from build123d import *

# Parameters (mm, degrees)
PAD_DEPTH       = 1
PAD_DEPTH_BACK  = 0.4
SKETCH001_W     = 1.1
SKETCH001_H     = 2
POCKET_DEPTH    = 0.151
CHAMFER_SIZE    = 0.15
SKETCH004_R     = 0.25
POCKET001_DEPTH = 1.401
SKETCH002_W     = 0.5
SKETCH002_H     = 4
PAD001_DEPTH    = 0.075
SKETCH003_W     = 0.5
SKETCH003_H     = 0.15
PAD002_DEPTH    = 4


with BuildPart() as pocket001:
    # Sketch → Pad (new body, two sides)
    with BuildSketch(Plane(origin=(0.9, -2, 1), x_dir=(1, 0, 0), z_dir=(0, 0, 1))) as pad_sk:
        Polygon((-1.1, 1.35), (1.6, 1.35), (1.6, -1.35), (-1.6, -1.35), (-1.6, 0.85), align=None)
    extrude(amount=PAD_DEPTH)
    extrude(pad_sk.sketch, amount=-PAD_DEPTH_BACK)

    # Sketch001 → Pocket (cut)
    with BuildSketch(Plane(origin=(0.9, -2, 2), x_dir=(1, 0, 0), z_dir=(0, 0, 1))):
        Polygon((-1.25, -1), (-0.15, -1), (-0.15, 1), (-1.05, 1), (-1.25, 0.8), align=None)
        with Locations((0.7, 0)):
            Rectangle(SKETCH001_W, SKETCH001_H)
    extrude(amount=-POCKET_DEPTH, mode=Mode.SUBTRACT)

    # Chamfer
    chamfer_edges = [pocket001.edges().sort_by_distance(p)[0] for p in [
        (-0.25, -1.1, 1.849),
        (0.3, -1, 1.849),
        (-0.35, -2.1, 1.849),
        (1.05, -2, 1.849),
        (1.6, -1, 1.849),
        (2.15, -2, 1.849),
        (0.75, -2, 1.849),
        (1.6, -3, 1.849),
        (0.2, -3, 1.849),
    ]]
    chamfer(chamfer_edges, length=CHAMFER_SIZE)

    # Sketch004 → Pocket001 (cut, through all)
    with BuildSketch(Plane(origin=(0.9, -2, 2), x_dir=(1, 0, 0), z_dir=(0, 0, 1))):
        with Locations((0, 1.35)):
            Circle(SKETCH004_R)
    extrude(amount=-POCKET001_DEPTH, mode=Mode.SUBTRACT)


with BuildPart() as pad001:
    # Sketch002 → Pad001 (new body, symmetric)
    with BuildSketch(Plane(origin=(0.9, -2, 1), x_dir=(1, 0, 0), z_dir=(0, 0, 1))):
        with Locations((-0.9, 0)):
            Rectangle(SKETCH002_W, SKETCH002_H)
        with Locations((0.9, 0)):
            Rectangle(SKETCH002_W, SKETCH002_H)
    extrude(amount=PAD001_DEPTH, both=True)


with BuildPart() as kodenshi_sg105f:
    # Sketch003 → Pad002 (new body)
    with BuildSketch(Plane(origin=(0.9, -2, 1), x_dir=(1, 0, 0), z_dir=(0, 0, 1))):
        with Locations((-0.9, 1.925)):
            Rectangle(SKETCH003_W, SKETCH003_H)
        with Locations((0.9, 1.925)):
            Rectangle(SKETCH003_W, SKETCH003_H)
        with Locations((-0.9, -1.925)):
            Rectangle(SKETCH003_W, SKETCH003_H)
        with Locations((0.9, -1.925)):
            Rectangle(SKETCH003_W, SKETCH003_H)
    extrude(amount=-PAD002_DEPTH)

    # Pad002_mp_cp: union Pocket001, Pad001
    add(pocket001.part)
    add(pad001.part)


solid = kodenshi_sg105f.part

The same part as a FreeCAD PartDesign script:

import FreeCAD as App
import Part
import Sketcher
from FreeCAD import Vector
Q = App.Units.Quantity


def edges_at(feature, points):
    """Names of the edges that pass closest to the given points."""
    edges = feature.Shape.Edges
    near = lambda p: min(range(len(edges)), key=lambda i: edges[i].distToShape(Part.Vertex(*p))[0])
    return sorted({f"Edge{near(p) + 1}" for p in points})


def add_polygon(sketch, points):
    """Adds a closed chain of lines whose ends are joined by coincident constraints."""
    first, n = sketch.GeometryCount, len(points)
    for a, b in zip(points, points[1:] + points[:1]):
        sketch.addGeometry(Part.LineSegment(App.Vector(*a, 0), App.Vector(*b, 0)), False)
    for i in range(n):
        sketch.addConstraint(Sketcher.Constraint("Coincident", first + i, 2, first + (i + 1) % n, 1))

doc = App.newDocument("Part")
body = doc.addObject("PartDesign::Body", "Body")

sketch1 = body.newObject("Sketcher::SketchObject", "Sketch")
sketch1.AttachmentSupport = (doc.getObject("XY_Plane"), [""])
sketch1.MapMode = "FlatFace"
sketch1.AttachmentOffset = App.Placement(Vector(0, 0, 1), App.Rotation())
add_polygon(sketch1, [(2.5, -0.65), (-0.2, -0.65), (-0.7, -1.15), (-0.7, -3.35), (2.5, -3.35)])
sketch1.addConstraint(Sketcher.Constraint("Horizontal", 0))
sketch1.addConstraint(Sketcher.Constraint("Vertical", 2))
sketch1.addConstraint(Sketcher.Constraint("Horizontal", 3))
sketch1.addConstraint(Sketcher.Constraint("Vertical", 4))
sketch1.addConstraint(Sketcher.Constraint("Equal", 0, 4))
sketch1.addConstraint(Sketcher.Constraint("Angle", 1, Q("-135 deg")))
sketch1.addConstraint(Sketcher.Constraint("DistanceX", 0, 2, 0, 1, 2.7))
sketch1.addConstraint(Sketcher.Constraint("DistanceX", 3, 1, 3, 2, 3.2))
sketch1.addConstraint(Sketcher.Constraint("DistanceX", 0, 2, -1, 1, 0.2))
sketch1.addConstraint(Sketcher.Constraint("DistanceY", 0, 2, -1, 1, 0.65))
pad1 = body.newObject("PartDesign::Pad", "Pad")
pad1.Profile = sketch1
pad1.Type = "TwoLengths"
pad1.Length = 1
pad1.Length2 = 0.4

sketch2 = body.newObject("Sketcher::SketchObject", "Sketch001")
sketch2.AttachmentSupport = (doc.getObject("XY_Plane"), [""])
sketch2.MapMode = "FlatFace"
sketch2.AttachmentOffset = App.Placement(Vector(0, 0, 2), App.Rotation())
add_polygon(sketch2, [(-0.35, -3), (0.75, -3), (0.75, -1), (-0.15, -1), (-0.35, -1.2)])
add_polygon(sketch2, [(1.05, -1), (1.05, -3), (2.15, -3), (2.15, -1)])
sketch2.addConstraint(Sketcher.Constraint("Horizontal", 0))
sketch2.addConstraint(Sketcher.Constraint("Vertical", 1))
sketch2.addConstraint(Sketcher.Constraint("Horizontal", 2))
sketch2.addConstraint(Sketcher.Constraint("Vertical", 4))
sketch2.addConstraint(Sketcher.Constraint("Vertical", 5))
sketch2.addConstraint(Sketcher.Constraint("Horizontal", 6))
sketch2.addConstraint(Sketcher.Constraint("Vertical", 7))
sketch2.addConstraint(Sketcher.Constraint("Horizontal", 8))
sketch2.addConstraint(Sketcher.Constraint("Horizontal", 4, 2, 5, 2))
sketch2.addConstraint(Sketcher.Constraint("Horizontal", 2, 2, 7, 2))
sketch2.addConstraint(Sketcher.Constraint("Equal", 0, 6))
sketch2.addConstraint(Sketcher.Constraint("DistanceY", 1, 1, 1, 2, 2.0))
sketch2.addConstraint(Sketcher.Constraint("Angle", 3, Q("-135 deg")))
sketch2.addConstraint(Sketcher.Constraint("DistanceX", 0, 1, 0, 2, 1.1))
sketch2.addConstraint(Sketcher.Constraint("DistanceX", 2, 2, 2, 1, 0.9))
sketch2.addConstraint(Sketcher.Constraint("DistanceY", 0, 2, -1, 1, 3.0))
sketch2.addConstraint(Sketcher.Constraint("DistanceX", 0, 2, 5, 2, 0.3))
sketch2.addConstraint(Sketcher.Constraint("DistanceX", -1, 1, 0, 2, 0.75))
pocket1 = body.newObject("PartDesign::Pocket", "Pocket")
pocket1.Profile = sketch2
pocket1.Length = 0.151
doc.recompute()

chamfer = body.newObject("PartDesign::Chamfer", "Chamfer")
chamfer.Base = (pocket1, edges_at(pocket1, [
    (-0.25, -1.1, 1.849),
    (0.3, -1, 1.849),
    (-0.35, -2.1, 1.849),
    (1.05, -2, 1.849),
    (1.6, -1, 1.849),
    (2.15, -2, 1.849),
    (0.75, -2, 1.849),
    (1.6, -3, 1.849),
    (0.2, -3, 1.849),
]))
chamfer.Size = 0.15

sketch3 = body.newObject("Sketcher::SketchObject", "Sketch002")
sketch3.AttachmentSupport = (doc.getObject("XY_Plane"), [""])
sketch3.MapMode = "FlatFace"
sketch3.AttachmentOffset = App.Placement(Vector(0, 0, 2), App.Rotation())
sketch3.addGeometry(Part.Circle(Vector(0.9, -0.65, 0), Vector(0, 0, 1), 0.25), False)
sketch3.addConstraint(Sketcher.Constraint("Diameter", 0, 0.5))
sketch3.addConstraint(Sketcher.Constraint("DistanceX", -1, 1, 0, 3, 0.9))
sketch3.addConstraint(Sketcher.Constraint("DistanceY", 0, 3, -1, 1, 0.65))
pocket2 = body.newObject("PartDesign::Pocket", "Pocket001")
pocket2.Profile = sketch3
pocket2.Type = "ThroughAll"
body2 = doc.addObject("PartDesign::Body", "Body001")
body2.AllowCompound = True

sketch4 = body2.newObject("Sketcher::SketchObject", "Sketch003")
sketch4.AttachmentSupport = (doc.getObject("XY_Plane001"), [""])
sketch4.MapMode = "FlatFace"
sketch4.AttachmentOffset = App.Placement(Vector(0, 0, 1), App.Rotation())
add_polygon(sketch4, [(-0.25, 0), (-0.25, -4), (0.25, -4), (0.25, 0)])
add_polygon(sketch4, [(1.55, 0), (1.55, -4), (2.05, -4), (2.05, 0)])
sketch4.addConstraint(Sketcher.Constraint("Vertical", 0))
sketch4.addConstraint(Sketcher.Constraint("Horizontal", 1))
sketch4.addConstraint(Sketcher.Constraint("Vertical", 2))
sketch4.addConstraint(Sketcher.Constraint("Horizontal", 3))
sketch4.addConstraint(Sketcher.Constraint("Vertical", 4))
sketch4.addConstraint(Sketcher.Constraint("Horizontal", 5))
sketch4.addConstraint(Sketcher.Constraint("Vertical", 6))
sketch4.addConstraint(Sketcher.Constraint("Horizontal", 7))
sketch4.addConstraint(Sketcher.Constraint("Symmetric", 2, 2, 3, 2, -1, 1))
sketch4.addConstraint(Sketcher.Constraint("PointOnObject", 6, 2, -1))
sketch4.addConstraint(Sketcher.Constraint("Horizontal", 1, 2, 4, 2))
sketch4.addConstraint(Sketcher.Constraint("Equal", 3, 5))
sketch4.addConstraint(Sketcher.Constraint("DistanceY", 0, 2, 0, 1, 4.0))
sketch4.addConstraint(Sketcher.Constraint("DistanceX", 1, 1, 1, 2, 0.5))
sketch4.addConstraint(Sketcher.Constraint("DistanceX", 1, 2, 4, 2, 1.3))
pad2 = body2.newObject("PartDesign::Pad", "Pad001")
pad2.Profile = sketch4
pad2.Length = 0.15
pad2.Midplane = True
body3 = doc.addObject("PartDesign::Body", "Body002")
body3.AllowCompound = True

sketch5 = body3.newObject("Sketcher::SketchObject", "Sketch004")
sketch5.AttachmentSupport = (doc.getObject("XY_Plane002"), [""])
sketch5.MapMode = "FlatFace"
sketch5.AttachmentOffset = App.Placement(Vector(0, 0, 1), App.Rotation())
add_polygon(sketch5, [(-0.25, 0), (-0.25, -0.15), (0.25, -0.15), (0.25, 0)])
add_polygon(sketch5, [(1.55, 0), (1.55, -0.15), (2.05, -0.15), (2.05, 0)])
add_polygon(sketch5, [(-0.25, -3.85), (-0.25, -4), (0.25, -4), (0.25, -3.85)])
add_polygon(sketch5, [(1.55, -3.85), (1.55, -4), (2.05, -4), (2.05, -3.85)])
sketch5.addConstraint(Sketcher.Constraint("Vertical", 0))
sketch5.addConstraint(Sketcher.Constraint("Horizontal", 1))
sketch5.addConstraint(Sketcher.Constraint("Vertical", 2))
sketch5.addConstraint(Sketcher.Constraint("Horizontal", 3))
sketch5.addConstraint(Sketcher.Constraint("Vertical", 4))
sketch5.addConstraint(Sketcher.Constraint("Horizontal", 5))
sketch5.addConstraint(Sketcher.Constraint("Vertical", 6))
sketch5.addConstraint(Sketcher.Constraint("Horizontal", 7))
sketch5.addConstraint(Sketcher.Constraint("Vertical", 8))
sketch5.addConstraint(Sketcher.Constraint("Horizontal", 9))
sketch5.addConstraint(Sketcher.Constraint("Vertical", 10))
sketch5.addConstraint(Sketcher.Constraint("Horizontal", 11))
sketch5.addConstraint(Sketcher.Constraint("Vertical", 12))
sketch5.addConstraint(Sketcher.Constraint("Horizontal", 13))
sketch5.addConstraint(Sketcher.Constraint("Vertical", 14))
sketch5.addConstraint(Sketcher.Constraint("Horizontal", 15))
sketch5.addConstraint(Sketcher.Constraint("Symmetric", 2, 2, 3, 2, -1, 1))
sketch5.addConstraint(Sketcher.Constraint("PointOnObject", 6, 2, -1))
sketch5.addConstraint(Sketcher.Constraint("Horizontal", 1, 2, 4, 2))
sketch5.addConstraint(Sketcher.Constraint("Horizontal", 9, 2, 12, 2))
sketch5.addConstraint(Sketcher.Constraint("Horizontal", 11, 2, 14, 2))
sketch5.addConstraint(Sketcher.Constraint("Vertical", 3, 2, 8, 2))
sketch5.addConstraint(Sketcher.Constraint("Vertical", 2, 2, 9, 2))
sketch5.addConstraint(Sketcher.Constraint("Vertical", 7, 2, 12, 2))
sketch5.addConstraint(Sketcher.Constraint("Vertical", 6, 2, 13, 2))
sketch5.addConstraint(Sketcher.Constraint("Equal", 3, 5))
sketch5.addConstraint(Sketcher.Constraint("Equal", 6, 8))
sketch5.addConstraint(Sketcher.Constraint("DistanceX", 1, 1, 1, 2, 0.5))
sketch5.addConstraint(Sketcher.Constraint("DistanceY", 8, 2, -1, 1, 4.0))
sketch5.addConstraint(Sketcher.Constraint("DistanceY", 0, 2, 0, 1, 0.15))
sketch5.addConstraint(Sketcher.Constraint("DistanceX", 1, 2, 4, 2, 1.3))
pad3 = body3.newObject("PartDesign::Pad", "Pad002")
pad3.Profile = sketch5
pad3.Length = 4
pad3.Reversed = True
doc.recompute()

boolean = body3.newObject("PartDesign::Boolean", "Boolean")
boolean.Type = "Fuse"
boolean.addObjects([body])
doc.recompute()

boolean2 = body3.newObject("PartDesign::Boolean", "Boolean001")
boolean2.Type = "Fuse"
boolean2.addObjects([body2])

doc.recompute()
